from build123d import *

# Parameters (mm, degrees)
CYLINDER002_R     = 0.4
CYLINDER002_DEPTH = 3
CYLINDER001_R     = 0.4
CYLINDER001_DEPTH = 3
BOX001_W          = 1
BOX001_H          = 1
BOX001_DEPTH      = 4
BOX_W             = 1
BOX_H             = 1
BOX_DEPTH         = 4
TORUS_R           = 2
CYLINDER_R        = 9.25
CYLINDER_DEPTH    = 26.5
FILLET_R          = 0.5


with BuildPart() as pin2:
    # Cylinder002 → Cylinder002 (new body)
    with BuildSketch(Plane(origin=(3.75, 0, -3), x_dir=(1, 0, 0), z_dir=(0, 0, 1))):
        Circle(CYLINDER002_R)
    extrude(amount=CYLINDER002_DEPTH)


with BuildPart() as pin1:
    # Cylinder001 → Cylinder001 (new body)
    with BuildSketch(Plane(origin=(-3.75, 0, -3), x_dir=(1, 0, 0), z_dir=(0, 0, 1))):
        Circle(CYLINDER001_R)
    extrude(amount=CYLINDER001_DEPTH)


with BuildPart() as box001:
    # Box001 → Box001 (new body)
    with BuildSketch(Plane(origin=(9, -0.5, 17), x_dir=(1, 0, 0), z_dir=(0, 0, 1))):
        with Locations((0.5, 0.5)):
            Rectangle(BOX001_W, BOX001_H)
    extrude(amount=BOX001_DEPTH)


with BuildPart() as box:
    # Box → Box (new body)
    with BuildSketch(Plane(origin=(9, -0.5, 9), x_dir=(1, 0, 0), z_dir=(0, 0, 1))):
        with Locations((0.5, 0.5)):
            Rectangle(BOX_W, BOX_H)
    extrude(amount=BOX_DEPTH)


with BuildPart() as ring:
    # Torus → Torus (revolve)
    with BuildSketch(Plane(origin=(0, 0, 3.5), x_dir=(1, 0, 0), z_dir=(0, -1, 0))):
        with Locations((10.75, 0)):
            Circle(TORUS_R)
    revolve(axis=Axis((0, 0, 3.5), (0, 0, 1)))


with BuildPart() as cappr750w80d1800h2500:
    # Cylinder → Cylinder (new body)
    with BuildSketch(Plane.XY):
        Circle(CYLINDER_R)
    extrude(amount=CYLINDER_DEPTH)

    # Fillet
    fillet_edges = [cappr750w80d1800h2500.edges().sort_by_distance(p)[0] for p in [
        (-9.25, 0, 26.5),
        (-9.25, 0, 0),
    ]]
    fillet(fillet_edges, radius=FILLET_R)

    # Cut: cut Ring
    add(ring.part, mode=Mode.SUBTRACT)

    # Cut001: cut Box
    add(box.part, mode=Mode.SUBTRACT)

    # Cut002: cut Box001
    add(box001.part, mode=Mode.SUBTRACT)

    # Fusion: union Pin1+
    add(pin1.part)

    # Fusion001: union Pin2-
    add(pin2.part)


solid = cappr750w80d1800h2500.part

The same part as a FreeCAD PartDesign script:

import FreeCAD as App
import Part
import Sketcher
Q = App.Units.Quantity


def edges_at(feature, points):
    """Names of the edges that pass closest to the given points."""
    edges = feature.Shape.Edges
    near = lambda p: min(range(len(edges)), key=lambda i: edges[i].distToShape(Part.Vertex(*p))[0])
    return sorted({f"Edge{near(p) + 1}" for p in points})

doc = App.newDocument("Part")
body = doc.addObject("PartDesign::Body", "Body")

# Sketch on XY plane
sketch1 = doc.addObject("Sketcher::SketchObject", "Sketch")
body.addObject(sketch1)
sketch1.AttachmentSupport = (doc.XY_Plane, [""])
sketch1.MapMode = "FlatFace"
sketch1.AttachmentOffset = App.Placement(App.Vector(0, 0, -3), App.Rotation())
sketch1.addGeometry(Part.Circle(App.Vector(3.75, 0, 0), App.Vector(0, 0, 1), 0.4), False)
sketch1.addConstraint(Sketcher.Constraint("PointOnObject", 0, 3, -1))
sketch1.addConstraint(Sketcher.Constraint("Diameter", 0, Q("0.8 mm")))
sketch1.addConstraint(Sketcher.Constraint("DistanceX", -1, 1, 0, 3, Q("3.75 mm")))
pad1 = doc.addObject("PartDesign::Pad", "Pad")
body.addObject(pad1)
pad1.Profile = sketch1
pad1.Length = 3
body2 = doc.addObject("PartDesign::Body", "Body001")

# Sketch on XY plane
sketch2 = doc.addObject("Sketcher::SketchObject", "Sketch001")
body2.addObject(sketch2)
sketch2.AttachmentSupport = (doc.getObject("XY_Plane001"), [""])
sketch2.MapMode = "FlatFace"
sketch2.AttachmentOffset = App.Placement(App.Vector(0, 0, -3), App.Rotation())
sketch2.addGeometry(Part.Circle(App.Vector(-3.75, 0, 0), App.Vector(0, 0, 1), 0.4), False)
sketch2.addConstraint(Sketcher.Constraint("PointOnObject", 0, 3, -1))
sketch2.addConstraint(Sketcher.Constraint("Diameter", 0, Q("0.8 mm")))
sketch2.addConstraint(Sketcher.Constraint("DistanceX", 0, 3, -1, 1, Q("3.75 mm")))
pad2 = doc.addObject("PartDesign::Pad", "Pad001")
body2.addObject(pad2)
pad2.Profile = sketch2
pad2.Length = 3
body3 = doc.addObject("PartDesign::Body", "Body002")

# Sketch on XY plane
sketch3 = doc.addObject("Sketcher::SketchObject", "Sketch002")
body3.addObject(sketch3)
sketch3.AttachmentSupport = (doc.getObject("XY_Plane002"), [""])
sketch3.MapMode = "FlatFace"
sketch3.AttachmentOffset = App.Placement(App.Vector(0, 0, 17), App.Rotation())
sketch3.addGeometry(Part.LineSegment(App.Vector(9, 0.5, 0), App.Vector(9, -0.5, 0)), False)
sketch3.addGeometry(Part.LineSegment(App.Vector(9, -0.5, 0), App.Vector(10, -0.5, 0)), False)
sketch3.addGeometry(Part.LineSegment(App.Vector(10, -0.5, 0), App.Vector(10, 0.5, 0)), False)
sketch3.addGeometry(Part.LineSegment(App.Vector(10, 0.5, 0), App.Vector(9, 0.5, 0)), False)
sketch3.addConstraint(Sketcher.Constraint("Coincident", 0, 2, 1, 1))
sketch3.addConstraint(Sketcher.Constraint("Coincident", 1, 2, 2, 1))
sketch3.addConstraint(Sketcher.Constraint("Coincident", 2, 2, 3, 1))
sketch3.addConstraint(Sketcher.Constraint("Coincident", 3, 2, 0, 1))
sketch3.addConstraint(Sketcher.Constraint("Vertical", 0))
sketch3.addConstraint(Sketcher.Constraint("Horizontal", 1))
sketch3.addConstraint(Sketcher.Constraint("Vertical", 2))
sketch3.addConstraint(Sketcher.Constraint("Horizontal", 3))
sketch3.addConstraint(Sketcher.Constraint("Equal", 3, 0))
sketch3.addConstraint(Sketcher.Constraint("DistanceX", 1, 1, 1, 2, Q("1 mm")))
sketch3.addConstraint(Sketcher.Constraint("DistanceX", -1, 1, 0, 2, Q("9 mm")))
sketch3.addConstraint(Sketcher.Constraint("DistanceY", 0, 2, -1, 1, Q("0.5 mm")))
pad3 = doc.addObject("PartDesign::Pad", "Pad002")
body3.addObject(pad3)
pad3.Profile = sketch3
pad3.Length = 4
body4 = doc.addObject("PartDesign::Body", "Body003")

# Sketch on XY plane
sketch4 = doc.addObject("Sketcher::SketchObject", "Sketch003")
body4.addObject(sketch4)
sketch4.AttachmentSupport = (doc.getObject("XY_Plane003"), [""])
sketch4.MapMode = "FlatFace"
sketch4.AttachmentOffset = App.Placement(App.Vector(0, 0, 9), App.Rotation())
sketch4.addGeometry(Part.LineSegment(App.Vector(9, 0.5, 0), App.Vector(9, -0.5, 0)), False)
sketch4.addGeometry(Part.LineSegment(App.Vector(9, -0.5, 0), App.Vector(10, -0.5, 0)), False)
sketch4.addGeometry(Part.LineSegment(App.Vector(10, -0.5, 0), App.Vector(10, 0.5, 0)), False)
sketch4.addGeometry(Part.LineSegment(App.Vector(10, 0.5, 0), App.Vector(9, 0.5, 0)), False)
sketch4.addConstraint(Sketcher.Constraint("Coincident", 0, 2, 1, 1))
sketch4.addConstraint(Sketcher.Constraint("Coincident", 1, 2, 2, 1))
sketch4.addConstraint(Sketcher.Constraint("Coincident", 2, 2, 3, 1))
sketch4.addConstraint(Sketcher.Constraint("Coincident", 3, 2, 0, 1))
sketch4.addConstraint(Sketcher.Constraint("Vertical", 0))
sketch4.addConstraint(Sketcher.Constraint("Horizontal", 1))
sketch4.addConstraint(Sketcher.Constraint("Vertical", 2))
sketch4.addConstraint(Sketcher.Constraint("Horizontal", 3))
sketch4.addConstraint(Sketcher.Constraint("Equal", 3, 0))
sketch4.addConstraint(Sketcher.Constraint("DistanceX", 1, 1, 1, 2, Q("1 mm")))
sketch4.addConstraint(Sketcher.Constraint("DistanceX", -1, 1, 0, 2, Q("9 mm")))
sketch4.addConstraint(Sketcher.Constraint("DistanceY", 0, 2, -1, 1, Q("0.5 mm")))
pad4 = doc.addObject("PartDesign::Pad", "Pad003")
body4.addObject(pad4)
pad4.Profile = sketch4
pad4.Length = 4
body5 = doc.addObject("PartDesign::Body", "Body004")

# Sketch on XZ plane
sketch5 = doc.addObject("Sketcher::SketchObject", "Sketch004")
body5.addObject(sketch5)
sketch5.AttachmentSupport = (doc.getObject("XZ_Plane004"), [""])
sketch5.MapMode = "FlatFace"
sketch5.addGeometry(Part.Circle(App.Vector(10.8, 3.5, 0), App.Vector(0, 0, 1), 2), False)
sketch5.addConstraint(Sketcher.Constraint("Diameter", 0, Q("4 mm")))
sketch5.addConstraint(Sketcher.Constraint("DistanceY", -1, 1, 0, 3, Q("3.5 mm")))
sketch5.addConstraint(Sketcher.Constraint("DistanceX", -1, 1, 0, 3, Q("10.75 mm")))
revolution = doc.addObject("PartDesign::Revolution", "Revolution")
body5.addObject(revolution)
revolution.Profile = sketch5
revolution.ReferenceAxis = (sketch5, ["V_Axis"])
revolution.Angle = 360
body6 = doc.addObject("PartDesign::Body", "Body005")

# Sketch on XY plane
sketch6 = doc.addObject("Sketcher::SketchObject", "Sketch005")
body6.addObject(sketch6)
sketch6.AttachmentSupport = (doc.getObject("XY_Plane005"), [""])
sketch6.MapMode = "FlatFace"
sketch6.addGeometry(Part.Circle(App.Vector(0, 0, 0), App.Vector(0, 0, 1), 9), False)
sketch6.addConstraint(Sketcher.Constraint("Coincident", 0, 3, -1, 1))
sketch6.addConstraint(Sketcher.Constraint("Diameter", 0, Q("18.5 mm")))
pad5 = doc.addObject("PartDesign::Pad", "Pad004")
body6.addObject(pad5)
pad5.Profile = sketch6
pad5.Length = 26.5
doc.recompute()

fillet = doc.addObject("PartDesign::Fillet", "Fillet")
body6.addObject(fillet)
fillet.Base = (pad5, edges_at(pad5, [(-9.25, 0, 26.5), (-9.25, 0, 0)]))
fillet.Radius = 0.5
doc.recompute()

boolean = doc.addObject("PartDesign::Boolean", "Boolean")
body6.addObject(boolean)
boolean.Type = "Cut"
boolean.addObjects([body5])
doc.recompute()

boolean2 = doc.addObject("PartDesign::Boolean", "Boolean001")
body6.addObject(boolean2)
boolean2.Type = "Cut"
boolean2.addObjects([body4])
doc.recompute()

boolean3 = doc.addObject("PartDesign::Boolean", "Boolean002")
body6.addObject(boolean3)
boolean3.Type = "Cut"
boolean3.addObjects([body3])
doc.recompute()

boolean4 = doc.addObject("PartDesign::Boolean", "Boolean003")
body6.addObject(boolean4)
boolean4.Type = "Fuse"
boolean4.addObjects([body2])
doc.recompute()

boolean5 = doc.addObject("PartDesign::Boolean", "Boolean004")
body6.addObject(boolean5)
boolean5.Type = "Fuse"
boolean5.addObjects([body])

doc.recompute()
